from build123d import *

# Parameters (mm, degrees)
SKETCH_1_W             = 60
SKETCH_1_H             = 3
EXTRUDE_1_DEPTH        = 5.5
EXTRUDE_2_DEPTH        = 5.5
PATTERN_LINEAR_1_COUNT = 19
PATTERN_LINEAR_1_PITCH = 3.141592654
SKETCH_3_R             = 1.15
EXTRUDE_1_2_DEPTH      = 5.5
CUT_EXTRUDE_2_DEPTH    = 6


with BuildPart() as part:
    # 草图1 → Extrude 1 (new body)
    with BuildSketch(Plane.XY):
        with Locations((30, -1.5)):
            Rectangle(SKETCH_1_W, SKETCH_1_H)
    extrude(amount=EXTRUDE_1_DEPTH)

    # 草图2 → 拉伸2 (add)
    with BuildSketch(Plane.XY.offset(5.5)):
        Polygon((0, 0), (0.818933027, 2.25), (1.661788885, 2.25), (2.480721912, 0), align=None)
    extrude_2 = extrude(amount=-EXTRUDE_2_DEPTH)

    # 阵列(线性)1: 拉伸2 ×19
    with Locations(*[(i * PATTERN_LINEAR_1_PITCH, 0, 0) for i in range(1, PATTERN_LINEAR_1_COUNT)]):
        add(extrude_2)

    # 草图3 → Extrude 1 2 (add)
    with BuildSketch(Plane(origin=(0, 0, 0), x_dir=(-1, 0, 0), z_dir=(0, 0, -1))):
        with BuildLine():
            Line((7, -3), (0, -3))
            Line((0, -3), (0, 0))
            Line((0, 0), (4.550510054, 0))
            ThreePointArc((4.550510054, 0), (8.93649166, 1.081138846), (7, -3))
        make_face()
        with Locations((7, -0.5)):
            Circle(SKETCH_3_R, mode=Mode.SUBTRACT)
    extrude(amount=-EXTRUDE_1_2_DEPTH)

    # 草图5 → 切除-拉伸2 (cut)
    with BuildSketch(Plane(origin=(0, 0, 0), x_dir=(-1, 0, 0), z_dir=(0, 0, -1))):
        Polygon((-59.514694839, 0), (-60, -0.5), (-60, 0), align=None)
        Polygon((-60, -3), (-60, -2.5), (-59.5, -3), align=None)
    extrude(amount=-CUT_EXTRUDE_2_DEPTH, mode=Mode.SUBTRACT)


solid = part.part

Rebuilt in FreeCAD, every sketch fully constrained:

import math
import FreeCAD as App
import Part
import Sketcher
from FreeCAD import Vector
Q = App.Units.Quantity

doc = App.newDocument("Part")
body = doc.addObject("PartDesign::Body", "Body")

# Sketch on XY plane
sketch1 = body.newObject("Sketcher::SketchObject", "Sketch")
sketch1.AttachmentSupport = (doc.getObject("XY_Plane"), [""])
sketch1.MapMode = "FlatFace"
sketch1.addGeometry(Part.LineSegment(Vector(0, 0, 0), Vector(0, -3, 0)), False)
sketch1.addGeometry(Part.LineSegment(Vector(0, -3, 0), Vector(60, -3, 0)), False)
sketch1.addGeometry(Part.LineSegment(Vector(60, -3, 0), Vector(60, 0, 0)), False)
sketch1.addGeometry(Part.LineSegment(Vector(60, 0, 0), Vector(0, 0, 0)), False)
sketch1.addConstraint(Sketcher.Constraint("Coincident", 0, 2, 1, 1))
sketch1.addConstraint(Sketcher.Constraint("Coincident", 1, 2, 2, 1))
sketch1.addConstraint(Sketcher.Constraint("Coincident", 2, 2, 3, 1))
sketch1.addConstraint(Sketcher.Constraint("Coincident", 3, 2, 0, 1))
sketch1.addConstraint(Sketcher.Constraint("Vertical", 0))
sketch1.addConstraint(Sketcher.Constraint("Horizontal", 1))
sketch1.addConstraint(Sketcher.Constraint("Vertical", 2))
sketch1.addConstraint(Sketcher.Constraint("Horizontal", 3))
sketch1.addConstraint(Sketcher.Constraint("Coincident", 3, 2, -1, 1))
sketch1.addConstraint(Sketcher.Constraint("DistanceX", 1, 1, 1, 2, Q("60 mm")))
sketch1.addConstraint(Sketcher.Constraint("DistanceY", 0, 2, 0, 1, Q("3 mm")))
pad1 = body.newObject("PartDesign::Pad", "Pad")
pad1.Profile = sketch1
pad1.Length = 5.5

# Sketch on XY plane
sketch2 = body.newObject("Sketcher::SketchObject", "Sketch001")
sketch2.AttachmentSupport = (doc.getObject("XY_Plane"), [""])
sketch2.MapMode = "FlatFace"
sketch2.AttachmentOffset = App.Placement(Vector(0, 0, 5.5), App.Rotation())
sketch2.addGeometry(Part.LineSegment(Vector(0.8, 2.2, 0), Vector(0, 0, 0)), False)
sketch2.addGeometry(Part.LineSegment(Vector(0, 0, 0), Vector(2.5, 0, 0)), False)
sketch2.addGeometry(Part.LineSegment(Vector(2.5, 0, 0), Vector(1.7, 2.2, 0)), False)
sketch2.addGeometry(Part.LineSegment(Vector(1.7, 2.2, 0), Vector(0.8, 2.2, 0)), False)
sketch2.addConstraint(Sketcher.Constraint("Coincident", 0, 2, 1, 1))
sketch2.addConstraint(Sketcher.Constraint("Coincident", 1, 2, 2, 1))
sketch2.addConstraint(Sketcher.Constraint("Coincident", 2, 2, 3, 1))
sketch2.addConstraint(Sketcher.Constraint("Coincident", 3, 2, 0, 1))
sketch2.addConstraint(Sketcher.Constraint("Horizontal", 1))
sketch2.addConstraint(Sketcher.Constraint("Horizontal", 3))
sketch2.addConstraint(Sketcher.Constraint("Coincident", 0, 2, -1, 1))
sketch2.addConstraint(Sketcher.Constraint("Equal", 0, 2))
sketch2.addConstraint(Sketcher.Constraint("Angle", 0, Q("-110 deg")))
sketch2.addConstraint(Sketcher.Constraint("DistanceY", -1, 1, 2, 2, Q("2.25 mm")))
sketch2.addConstraint(Sketcher.Constraint("DistanceX", 1, 1, 1, 2, Q("2.480722 mm")))
pad2 = body.newObject("PartDesign::Pad", "Pad001")
pad2.Profile = sketch2
pad2.Length = 5.5
pad2.Reversed = True
doc.recompute()

linearpattern = body.newObject("PartDesign::LinearPattern", "LinearPattern")
linearpattern.Originals = [pad2]
linearpattern.Direction = (doc.getObject("X_Axis"), [""])
linearpattern.Mode = "offset"
linearpattern.Offset = 3.141593
linearpattern.Occurrences = 19
body.Tip = linearpattern

# Sketch on XY plane
sketch3 = body.newObject("Sketcher::SketchObject", "Sketch002")
sketch3.AttachmentSupport = (doc.getObject("XY_Plane"), [""])
sketch3.MapMode = "FlatFace"
sketch3.addGeometry(Part.LineSegment(Vector(0, -3, 0), Vector(-7, -3, 0)), False)
sketch3.addGeometry(Part.ArcOfCircle(Part.Circle(Vector(-7, -0.5, 0), Vector(0, 0, 1), 2.5), math.radians(12), math.radians(270)), False)
sketch3.addGeometry(Part.LineSegment(Vector(-4.6, 0, 0), Vector(0, 0, 0)), False)
sketch3.addGeometry(Part.LineSegment(Vector(0, 0, 0), Vector(0, -3, 0)), False)
sketch3.addGeometry(Part.Circle(Vector(-7, -0.5, 0), Vector(0, 0, 1), 1.1), False)
sketch3.addConstraint(Sketcher.Constraint("Tangent", 0, 2, 1, 2))
sketch3.addConstraint(Sketcher.Constraint("Coincident", 1, 1, 2, 1))
sketch3.addConstraint(Sketcher.Constraint("Coincident", 2, 2, 3, 1))
sketch3.addConstraint(Sketcher.Constraint("Coincident", 3, 2, 0, 1))
sketch3.addConstraint(Sketcher.Constraint("Horizontal", 0))
sketch3.addConstraint(Sketcher.Constraint("Horizontal", 2))
sketch3.addConstraint(Sketcher.Constraint("Vertical", 3))
sketch3.addConstraint(Sketcher.Constraint("Coincident", 2, 2, -1, 1))
sketch3.addConstraint(Sketcher.Constraint("Coincident", 4, 3, 1, 3))
sketch3.addConstraint(Sketcher.Constraint("Diameter", 4, Q("2.3 mm")))
sketch3.addConstraint(Sketcher.Constraint("Radius", 1, Q("2.5 mm")))
sketch3.addConstraint(Sketcher.Constraint("DistanceX", 0, 2, 0, 1, Q("7 mm")))
sketch3.addConstraint(Sketcher.Constraint("DistanceY", 3, 2, 3, 1, Q("3 mm")))
pad3 = body.newObject("PartDesign::Pad", "Pad002")
pad3.Profile = sketch3
pad3.Length = 5.5

# Sketch on XY plane
sketch4 = body.newObject("Sketcher::SketchObject", "Sketch003")
sketch4.AttachmentSupport = (doc.getObject("XY_Plane"), [""])
sketch4.MapMode = "FlatFace"
sketch4.addGeometry(Part.LineSegment(Vector(60, -0.5, 0), Vector(59.51, 0, 0)), False)
sketch4.addGeometry(Part.LineSegment(Vector(59.51, 0, 0), Vector(60, 0, 0)), False)
sketch4.addGeometry(Part.LineSegment(Vector(60, 0, 0), Vector(60, -0.5, 0)), False)
sketch4.addGeometry(Part.LineSegment(Vector(60, -2.5, 0), Vector(60, -3, 0)), False)
sketch4.addGeometry(Part.LineSegment(Vector(60, -3, 0), Vector(59.5, -3, 0)), False)
sketch4.addGeometry(Part.LineSegment(Vector(59.5, -3, 0), Vector(60, -2.5, 0)), False)
sketch4.addConstraint(Sketcher.Constraint("Coincident", 0, 2, 1, 1))
sketch4.addConstraint(Sketcher.Constraint("Coincident", 1, 2, 2, 1))
sketch4.addConstraint(Sketcher.Constraint("Coincident", 2, 2, 0, 1))
sketch4.addConstraint(Sketcher.Constraint("Coincident", 3, 2, 4, 1))
sketch4.addConstraint(Sketcher.Constraint("Coincident", 4, 2, 5, 1))
sketch4.addConstraint(Sketcher.Constraint("Coincident", 5, 2, 3, 1))
sketch4.addConstraint(Sketcher.Constraint("Horizontal", 1))
sketch4.addConstraint(Sketcher.Constraint("Vertical", 2))
sketch4.addConstraint(Sketcher.Constraint("Vertical", 3))
sketch4.addConstraint(Sketcher.Constraint("Horizontal", 4))
sketch4.addConstraint(Sketcher.Constraint("PointOnObject", 0, 2, -1))
sketch4.addConstraint(Sketcher.Constraint("Vertical", 2, 2, 3, 2))
sketch4.addConstraint(Sketcher.Constraint("Equal", 4, 2))
sketch4.addConstraint(Sketcher.Constraint("Equal", 2, 3))
sketch4.addConstraint(Sketcher.Constraint("DistanceX", 4, 2, 4, 1, Q("0.5 mm")))
sketch4.addConstraint(Sketcher.Constraint("DistanceX", -1, 1, 1, 2, Q("60 mm")))
sketch4.addConstraint(Sketcher.Constraint("DistanceY", 3, 2, -1, 1, Q("3 mm")))
sketch4.addConstraint(Sketcher.Constraint("DistanceX", 1, 1, 1, 2, Q("0.485305 mm")))
pocket1 = body.newObject("PartDesign::Pocket", "Pocket")
pocket1.Profile = sketch4
pocket1.Length = 6
pocket1.Reversed = True

doc.recompute()
